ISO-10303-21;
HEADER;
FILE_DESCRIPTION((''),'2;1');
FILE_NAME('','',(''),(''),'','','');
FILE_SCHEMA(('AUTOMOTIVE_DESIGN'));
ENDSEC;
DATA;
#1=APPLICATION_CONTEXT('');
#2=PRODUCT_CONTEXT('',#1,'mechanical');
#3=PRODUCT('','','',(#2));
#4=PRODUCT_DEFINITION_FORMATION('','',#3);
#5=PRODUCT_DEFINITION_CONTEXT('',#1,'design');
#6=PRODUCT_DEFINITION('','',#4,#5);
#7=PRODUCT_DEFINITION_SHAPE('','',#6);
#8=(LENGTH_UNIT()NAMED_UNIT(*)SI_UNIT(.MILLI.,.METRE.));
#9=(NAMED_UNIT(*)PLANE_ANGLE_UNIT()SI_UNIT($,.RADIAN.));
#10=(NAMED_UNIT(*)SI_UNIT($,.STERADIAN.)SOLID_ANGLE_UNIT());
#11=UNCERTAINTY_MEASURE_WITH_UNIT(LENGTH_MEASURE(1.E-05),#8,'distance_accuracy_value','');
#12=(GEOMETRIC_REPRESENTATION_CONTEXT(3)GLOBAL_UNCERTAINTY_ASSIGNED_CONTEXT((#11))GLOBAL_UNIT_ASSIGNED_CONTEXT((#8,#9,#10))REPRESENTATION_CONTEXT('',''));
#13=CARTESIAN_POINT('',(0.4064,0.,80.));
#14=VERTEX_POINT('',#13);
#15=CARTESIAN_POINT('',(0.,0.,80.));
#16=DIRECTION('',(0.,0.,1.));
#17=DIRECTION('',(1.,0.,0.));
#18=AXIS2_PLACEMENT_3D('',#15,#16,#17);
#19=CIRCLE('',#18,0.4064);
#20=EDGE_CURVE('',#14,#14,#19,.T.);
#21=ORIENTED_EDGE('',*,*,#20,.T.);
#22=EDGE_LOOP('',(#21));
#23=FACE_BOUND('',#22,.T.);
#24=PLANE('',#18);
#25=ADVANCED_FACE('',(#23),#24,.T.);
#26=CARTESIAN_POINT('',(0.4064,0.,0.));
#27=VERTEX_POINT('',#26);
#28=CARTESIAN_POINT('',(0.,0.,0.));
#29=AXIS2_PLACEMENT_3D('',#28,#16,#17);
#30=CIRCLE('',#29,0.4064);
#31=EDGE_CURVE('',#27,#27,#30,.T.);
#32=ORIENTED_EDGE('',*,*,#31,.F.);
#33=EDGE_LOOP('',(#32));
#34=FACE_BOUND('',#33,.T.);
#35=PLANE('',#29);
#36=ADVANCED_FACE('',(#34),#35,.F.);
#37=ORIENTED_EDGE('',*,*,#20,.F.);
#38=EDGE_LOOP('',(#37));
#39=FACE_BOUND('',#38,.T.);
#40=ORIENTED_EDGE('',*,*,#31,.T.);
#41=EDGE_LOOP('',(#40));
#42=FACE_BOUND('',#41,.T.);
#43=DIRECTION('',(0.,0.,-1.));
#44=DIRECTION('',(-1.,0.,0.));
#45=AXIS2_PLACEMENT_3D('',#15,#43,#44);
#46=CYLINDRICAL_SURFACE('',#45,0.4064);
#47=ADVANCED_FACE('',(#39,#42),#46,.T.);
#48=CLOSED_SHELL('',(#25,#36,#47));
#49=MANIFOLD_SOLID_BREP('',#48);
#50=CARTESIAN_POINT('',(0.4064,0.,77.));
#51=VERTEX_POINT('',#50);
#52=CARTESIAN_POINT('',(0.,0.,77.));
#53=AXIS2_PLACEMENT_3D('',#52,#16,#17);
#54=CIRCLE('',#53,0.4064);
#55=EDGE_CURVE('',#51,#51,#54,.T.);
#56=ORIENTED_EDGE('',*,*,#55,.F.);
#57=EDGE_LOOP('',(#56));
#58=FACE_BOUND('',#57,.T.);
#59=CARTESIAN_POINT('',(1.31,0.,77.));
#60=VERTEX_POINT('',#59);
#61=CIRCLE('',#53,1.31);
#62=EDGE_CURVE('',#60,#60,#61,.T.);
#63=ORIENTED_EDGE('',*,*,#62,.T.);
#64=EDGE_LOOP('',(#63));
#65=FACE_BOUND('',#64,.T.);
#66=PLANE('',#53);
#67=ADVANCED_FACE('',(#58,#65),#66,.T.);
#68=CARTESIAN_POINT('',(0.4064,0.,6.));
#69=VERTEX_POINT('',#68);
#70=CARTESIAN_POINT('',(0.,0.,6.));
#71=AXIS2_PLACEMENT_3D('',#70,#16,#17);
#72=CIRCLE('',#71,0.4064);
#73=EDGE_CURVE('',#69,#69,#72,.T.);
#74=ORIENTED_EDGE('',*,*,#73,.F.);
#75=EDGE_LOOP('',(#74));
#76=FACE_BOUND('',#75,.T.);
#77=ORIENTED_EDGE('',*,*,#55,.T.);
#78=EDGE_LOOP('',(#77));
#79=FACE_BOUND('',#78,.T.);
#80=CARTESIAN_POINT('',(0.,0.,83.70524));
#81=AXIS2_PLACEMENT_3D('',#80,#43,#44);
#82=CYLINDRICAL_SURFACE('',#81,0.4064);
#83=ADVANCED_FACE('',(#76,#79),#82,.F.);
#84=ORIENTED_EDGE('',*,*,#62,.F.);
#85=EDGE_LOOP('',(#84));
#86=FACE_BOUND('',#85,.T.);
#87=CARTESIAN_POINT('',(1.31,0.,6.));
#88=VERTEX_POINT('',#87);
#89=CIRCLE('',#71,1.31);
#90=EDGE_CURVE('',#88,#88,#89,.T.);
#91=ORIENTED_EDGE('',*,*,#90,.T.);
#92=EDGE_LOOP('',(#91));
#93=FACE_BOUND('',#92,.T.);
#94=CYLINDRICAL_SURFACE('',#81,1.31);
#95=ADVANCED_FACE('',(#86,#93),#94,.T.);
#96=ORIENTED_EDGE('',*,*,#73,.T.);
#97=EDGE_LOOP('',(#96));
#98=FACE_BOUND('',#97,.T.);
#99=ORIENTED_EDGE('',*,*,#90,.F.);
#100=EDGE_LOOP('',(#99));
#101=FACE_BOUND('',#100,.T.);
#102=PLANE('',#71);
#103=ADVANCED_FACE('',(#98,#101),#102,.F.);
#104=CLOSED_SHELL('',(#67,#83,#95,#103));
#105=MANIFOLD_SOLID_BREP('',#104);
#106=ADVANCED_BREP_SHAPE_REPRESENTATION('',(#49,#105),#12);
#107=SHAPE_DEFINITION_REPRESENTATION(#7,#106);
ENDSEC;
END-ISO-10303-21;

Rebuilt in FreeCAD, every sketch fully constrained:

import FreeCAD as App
import Part
import Sketcher
from FreeCAD import Vector

doc = App.newDocument("Part")
params = doc.addObject("Spreadsheet::Sheet", "Params")
for row, (alias, value) in enumerate([
    ("pad1_length", "80 mm"),
    ("sketch2_diameter", "2.62 mm"),
    ("pad2_length", "71 mm"),
], start=1):
    params.set(f"A{row}", alias)
    params.set(f"B{row}", "=" + value)
    params.setAlias(f"B{row}", alias)

body = doc.addObject("PartDesign::Body", "Body")

sketch1 = body.newObject("Sketcher::SketchObject", "Sketch")
sketch1.AttachmentSupport = (doc.getObject("XY_Plane"), [""])
sketch1.MapMode = "FlatFace"
sketch1.addGeometry(Part.Circle(Vector(0, 0, 0), Vector(0, 0, 1), 0.4064), False)
sketch1.addConstraint([
    Sketcher.Constraint("Coincident", 0, 3, -1, 1),
    Sketcher.Constraint("Diameter", 0, 0.8128),
])
pad1 = body.newObject("PartDesign::Pad", "Pad")
pad1.Profile = sketch1
pad1.setExpression("Length", "Params.pad1_length")
body2 = doc.addObject("PartDesign::Body", "Body001")

sketch2 = body2.newObject("Sketcher::SketchObject", "Sketch001")
sketch2.AttachmentSupport = (doc.getObject("XY_Plane001"), [""])
sketch2.MapMode = "FlatFace"
sketch2.AttachmentOffset = App.Placement(Vector(0, 0, 6), App.Rotation())
sketch2.addGeometry([
    Part.Circle(Vector(0, 0, 0), Vector(0, 0, 1), 1.31),
    Part.Circle(Vector(0, 0, 0), Vector(0, 0, 1), 0.4064),
], False)
sketch2.addConstraint([
    Sketcher.Constraint("Coincident", 0, 3, -1, 1),
    Sketcher.Constraint("Coincident", 1, 3, -1, 1),
    Sketcher.Constraint("Diameter", 0, 2.62),
    Sketcher.Constraint("Diameter", 1, 0.8128),
])
sketch2.setExpression("Constraints[2]", "Params.sketch2_diameter")
pad2 = body2.newObject("PartDesign::Pad", "Pad001")
pad2.Profile = sketch2
pad2.setExpression("Length", "Params.pad2_length")

doc.recompute()
